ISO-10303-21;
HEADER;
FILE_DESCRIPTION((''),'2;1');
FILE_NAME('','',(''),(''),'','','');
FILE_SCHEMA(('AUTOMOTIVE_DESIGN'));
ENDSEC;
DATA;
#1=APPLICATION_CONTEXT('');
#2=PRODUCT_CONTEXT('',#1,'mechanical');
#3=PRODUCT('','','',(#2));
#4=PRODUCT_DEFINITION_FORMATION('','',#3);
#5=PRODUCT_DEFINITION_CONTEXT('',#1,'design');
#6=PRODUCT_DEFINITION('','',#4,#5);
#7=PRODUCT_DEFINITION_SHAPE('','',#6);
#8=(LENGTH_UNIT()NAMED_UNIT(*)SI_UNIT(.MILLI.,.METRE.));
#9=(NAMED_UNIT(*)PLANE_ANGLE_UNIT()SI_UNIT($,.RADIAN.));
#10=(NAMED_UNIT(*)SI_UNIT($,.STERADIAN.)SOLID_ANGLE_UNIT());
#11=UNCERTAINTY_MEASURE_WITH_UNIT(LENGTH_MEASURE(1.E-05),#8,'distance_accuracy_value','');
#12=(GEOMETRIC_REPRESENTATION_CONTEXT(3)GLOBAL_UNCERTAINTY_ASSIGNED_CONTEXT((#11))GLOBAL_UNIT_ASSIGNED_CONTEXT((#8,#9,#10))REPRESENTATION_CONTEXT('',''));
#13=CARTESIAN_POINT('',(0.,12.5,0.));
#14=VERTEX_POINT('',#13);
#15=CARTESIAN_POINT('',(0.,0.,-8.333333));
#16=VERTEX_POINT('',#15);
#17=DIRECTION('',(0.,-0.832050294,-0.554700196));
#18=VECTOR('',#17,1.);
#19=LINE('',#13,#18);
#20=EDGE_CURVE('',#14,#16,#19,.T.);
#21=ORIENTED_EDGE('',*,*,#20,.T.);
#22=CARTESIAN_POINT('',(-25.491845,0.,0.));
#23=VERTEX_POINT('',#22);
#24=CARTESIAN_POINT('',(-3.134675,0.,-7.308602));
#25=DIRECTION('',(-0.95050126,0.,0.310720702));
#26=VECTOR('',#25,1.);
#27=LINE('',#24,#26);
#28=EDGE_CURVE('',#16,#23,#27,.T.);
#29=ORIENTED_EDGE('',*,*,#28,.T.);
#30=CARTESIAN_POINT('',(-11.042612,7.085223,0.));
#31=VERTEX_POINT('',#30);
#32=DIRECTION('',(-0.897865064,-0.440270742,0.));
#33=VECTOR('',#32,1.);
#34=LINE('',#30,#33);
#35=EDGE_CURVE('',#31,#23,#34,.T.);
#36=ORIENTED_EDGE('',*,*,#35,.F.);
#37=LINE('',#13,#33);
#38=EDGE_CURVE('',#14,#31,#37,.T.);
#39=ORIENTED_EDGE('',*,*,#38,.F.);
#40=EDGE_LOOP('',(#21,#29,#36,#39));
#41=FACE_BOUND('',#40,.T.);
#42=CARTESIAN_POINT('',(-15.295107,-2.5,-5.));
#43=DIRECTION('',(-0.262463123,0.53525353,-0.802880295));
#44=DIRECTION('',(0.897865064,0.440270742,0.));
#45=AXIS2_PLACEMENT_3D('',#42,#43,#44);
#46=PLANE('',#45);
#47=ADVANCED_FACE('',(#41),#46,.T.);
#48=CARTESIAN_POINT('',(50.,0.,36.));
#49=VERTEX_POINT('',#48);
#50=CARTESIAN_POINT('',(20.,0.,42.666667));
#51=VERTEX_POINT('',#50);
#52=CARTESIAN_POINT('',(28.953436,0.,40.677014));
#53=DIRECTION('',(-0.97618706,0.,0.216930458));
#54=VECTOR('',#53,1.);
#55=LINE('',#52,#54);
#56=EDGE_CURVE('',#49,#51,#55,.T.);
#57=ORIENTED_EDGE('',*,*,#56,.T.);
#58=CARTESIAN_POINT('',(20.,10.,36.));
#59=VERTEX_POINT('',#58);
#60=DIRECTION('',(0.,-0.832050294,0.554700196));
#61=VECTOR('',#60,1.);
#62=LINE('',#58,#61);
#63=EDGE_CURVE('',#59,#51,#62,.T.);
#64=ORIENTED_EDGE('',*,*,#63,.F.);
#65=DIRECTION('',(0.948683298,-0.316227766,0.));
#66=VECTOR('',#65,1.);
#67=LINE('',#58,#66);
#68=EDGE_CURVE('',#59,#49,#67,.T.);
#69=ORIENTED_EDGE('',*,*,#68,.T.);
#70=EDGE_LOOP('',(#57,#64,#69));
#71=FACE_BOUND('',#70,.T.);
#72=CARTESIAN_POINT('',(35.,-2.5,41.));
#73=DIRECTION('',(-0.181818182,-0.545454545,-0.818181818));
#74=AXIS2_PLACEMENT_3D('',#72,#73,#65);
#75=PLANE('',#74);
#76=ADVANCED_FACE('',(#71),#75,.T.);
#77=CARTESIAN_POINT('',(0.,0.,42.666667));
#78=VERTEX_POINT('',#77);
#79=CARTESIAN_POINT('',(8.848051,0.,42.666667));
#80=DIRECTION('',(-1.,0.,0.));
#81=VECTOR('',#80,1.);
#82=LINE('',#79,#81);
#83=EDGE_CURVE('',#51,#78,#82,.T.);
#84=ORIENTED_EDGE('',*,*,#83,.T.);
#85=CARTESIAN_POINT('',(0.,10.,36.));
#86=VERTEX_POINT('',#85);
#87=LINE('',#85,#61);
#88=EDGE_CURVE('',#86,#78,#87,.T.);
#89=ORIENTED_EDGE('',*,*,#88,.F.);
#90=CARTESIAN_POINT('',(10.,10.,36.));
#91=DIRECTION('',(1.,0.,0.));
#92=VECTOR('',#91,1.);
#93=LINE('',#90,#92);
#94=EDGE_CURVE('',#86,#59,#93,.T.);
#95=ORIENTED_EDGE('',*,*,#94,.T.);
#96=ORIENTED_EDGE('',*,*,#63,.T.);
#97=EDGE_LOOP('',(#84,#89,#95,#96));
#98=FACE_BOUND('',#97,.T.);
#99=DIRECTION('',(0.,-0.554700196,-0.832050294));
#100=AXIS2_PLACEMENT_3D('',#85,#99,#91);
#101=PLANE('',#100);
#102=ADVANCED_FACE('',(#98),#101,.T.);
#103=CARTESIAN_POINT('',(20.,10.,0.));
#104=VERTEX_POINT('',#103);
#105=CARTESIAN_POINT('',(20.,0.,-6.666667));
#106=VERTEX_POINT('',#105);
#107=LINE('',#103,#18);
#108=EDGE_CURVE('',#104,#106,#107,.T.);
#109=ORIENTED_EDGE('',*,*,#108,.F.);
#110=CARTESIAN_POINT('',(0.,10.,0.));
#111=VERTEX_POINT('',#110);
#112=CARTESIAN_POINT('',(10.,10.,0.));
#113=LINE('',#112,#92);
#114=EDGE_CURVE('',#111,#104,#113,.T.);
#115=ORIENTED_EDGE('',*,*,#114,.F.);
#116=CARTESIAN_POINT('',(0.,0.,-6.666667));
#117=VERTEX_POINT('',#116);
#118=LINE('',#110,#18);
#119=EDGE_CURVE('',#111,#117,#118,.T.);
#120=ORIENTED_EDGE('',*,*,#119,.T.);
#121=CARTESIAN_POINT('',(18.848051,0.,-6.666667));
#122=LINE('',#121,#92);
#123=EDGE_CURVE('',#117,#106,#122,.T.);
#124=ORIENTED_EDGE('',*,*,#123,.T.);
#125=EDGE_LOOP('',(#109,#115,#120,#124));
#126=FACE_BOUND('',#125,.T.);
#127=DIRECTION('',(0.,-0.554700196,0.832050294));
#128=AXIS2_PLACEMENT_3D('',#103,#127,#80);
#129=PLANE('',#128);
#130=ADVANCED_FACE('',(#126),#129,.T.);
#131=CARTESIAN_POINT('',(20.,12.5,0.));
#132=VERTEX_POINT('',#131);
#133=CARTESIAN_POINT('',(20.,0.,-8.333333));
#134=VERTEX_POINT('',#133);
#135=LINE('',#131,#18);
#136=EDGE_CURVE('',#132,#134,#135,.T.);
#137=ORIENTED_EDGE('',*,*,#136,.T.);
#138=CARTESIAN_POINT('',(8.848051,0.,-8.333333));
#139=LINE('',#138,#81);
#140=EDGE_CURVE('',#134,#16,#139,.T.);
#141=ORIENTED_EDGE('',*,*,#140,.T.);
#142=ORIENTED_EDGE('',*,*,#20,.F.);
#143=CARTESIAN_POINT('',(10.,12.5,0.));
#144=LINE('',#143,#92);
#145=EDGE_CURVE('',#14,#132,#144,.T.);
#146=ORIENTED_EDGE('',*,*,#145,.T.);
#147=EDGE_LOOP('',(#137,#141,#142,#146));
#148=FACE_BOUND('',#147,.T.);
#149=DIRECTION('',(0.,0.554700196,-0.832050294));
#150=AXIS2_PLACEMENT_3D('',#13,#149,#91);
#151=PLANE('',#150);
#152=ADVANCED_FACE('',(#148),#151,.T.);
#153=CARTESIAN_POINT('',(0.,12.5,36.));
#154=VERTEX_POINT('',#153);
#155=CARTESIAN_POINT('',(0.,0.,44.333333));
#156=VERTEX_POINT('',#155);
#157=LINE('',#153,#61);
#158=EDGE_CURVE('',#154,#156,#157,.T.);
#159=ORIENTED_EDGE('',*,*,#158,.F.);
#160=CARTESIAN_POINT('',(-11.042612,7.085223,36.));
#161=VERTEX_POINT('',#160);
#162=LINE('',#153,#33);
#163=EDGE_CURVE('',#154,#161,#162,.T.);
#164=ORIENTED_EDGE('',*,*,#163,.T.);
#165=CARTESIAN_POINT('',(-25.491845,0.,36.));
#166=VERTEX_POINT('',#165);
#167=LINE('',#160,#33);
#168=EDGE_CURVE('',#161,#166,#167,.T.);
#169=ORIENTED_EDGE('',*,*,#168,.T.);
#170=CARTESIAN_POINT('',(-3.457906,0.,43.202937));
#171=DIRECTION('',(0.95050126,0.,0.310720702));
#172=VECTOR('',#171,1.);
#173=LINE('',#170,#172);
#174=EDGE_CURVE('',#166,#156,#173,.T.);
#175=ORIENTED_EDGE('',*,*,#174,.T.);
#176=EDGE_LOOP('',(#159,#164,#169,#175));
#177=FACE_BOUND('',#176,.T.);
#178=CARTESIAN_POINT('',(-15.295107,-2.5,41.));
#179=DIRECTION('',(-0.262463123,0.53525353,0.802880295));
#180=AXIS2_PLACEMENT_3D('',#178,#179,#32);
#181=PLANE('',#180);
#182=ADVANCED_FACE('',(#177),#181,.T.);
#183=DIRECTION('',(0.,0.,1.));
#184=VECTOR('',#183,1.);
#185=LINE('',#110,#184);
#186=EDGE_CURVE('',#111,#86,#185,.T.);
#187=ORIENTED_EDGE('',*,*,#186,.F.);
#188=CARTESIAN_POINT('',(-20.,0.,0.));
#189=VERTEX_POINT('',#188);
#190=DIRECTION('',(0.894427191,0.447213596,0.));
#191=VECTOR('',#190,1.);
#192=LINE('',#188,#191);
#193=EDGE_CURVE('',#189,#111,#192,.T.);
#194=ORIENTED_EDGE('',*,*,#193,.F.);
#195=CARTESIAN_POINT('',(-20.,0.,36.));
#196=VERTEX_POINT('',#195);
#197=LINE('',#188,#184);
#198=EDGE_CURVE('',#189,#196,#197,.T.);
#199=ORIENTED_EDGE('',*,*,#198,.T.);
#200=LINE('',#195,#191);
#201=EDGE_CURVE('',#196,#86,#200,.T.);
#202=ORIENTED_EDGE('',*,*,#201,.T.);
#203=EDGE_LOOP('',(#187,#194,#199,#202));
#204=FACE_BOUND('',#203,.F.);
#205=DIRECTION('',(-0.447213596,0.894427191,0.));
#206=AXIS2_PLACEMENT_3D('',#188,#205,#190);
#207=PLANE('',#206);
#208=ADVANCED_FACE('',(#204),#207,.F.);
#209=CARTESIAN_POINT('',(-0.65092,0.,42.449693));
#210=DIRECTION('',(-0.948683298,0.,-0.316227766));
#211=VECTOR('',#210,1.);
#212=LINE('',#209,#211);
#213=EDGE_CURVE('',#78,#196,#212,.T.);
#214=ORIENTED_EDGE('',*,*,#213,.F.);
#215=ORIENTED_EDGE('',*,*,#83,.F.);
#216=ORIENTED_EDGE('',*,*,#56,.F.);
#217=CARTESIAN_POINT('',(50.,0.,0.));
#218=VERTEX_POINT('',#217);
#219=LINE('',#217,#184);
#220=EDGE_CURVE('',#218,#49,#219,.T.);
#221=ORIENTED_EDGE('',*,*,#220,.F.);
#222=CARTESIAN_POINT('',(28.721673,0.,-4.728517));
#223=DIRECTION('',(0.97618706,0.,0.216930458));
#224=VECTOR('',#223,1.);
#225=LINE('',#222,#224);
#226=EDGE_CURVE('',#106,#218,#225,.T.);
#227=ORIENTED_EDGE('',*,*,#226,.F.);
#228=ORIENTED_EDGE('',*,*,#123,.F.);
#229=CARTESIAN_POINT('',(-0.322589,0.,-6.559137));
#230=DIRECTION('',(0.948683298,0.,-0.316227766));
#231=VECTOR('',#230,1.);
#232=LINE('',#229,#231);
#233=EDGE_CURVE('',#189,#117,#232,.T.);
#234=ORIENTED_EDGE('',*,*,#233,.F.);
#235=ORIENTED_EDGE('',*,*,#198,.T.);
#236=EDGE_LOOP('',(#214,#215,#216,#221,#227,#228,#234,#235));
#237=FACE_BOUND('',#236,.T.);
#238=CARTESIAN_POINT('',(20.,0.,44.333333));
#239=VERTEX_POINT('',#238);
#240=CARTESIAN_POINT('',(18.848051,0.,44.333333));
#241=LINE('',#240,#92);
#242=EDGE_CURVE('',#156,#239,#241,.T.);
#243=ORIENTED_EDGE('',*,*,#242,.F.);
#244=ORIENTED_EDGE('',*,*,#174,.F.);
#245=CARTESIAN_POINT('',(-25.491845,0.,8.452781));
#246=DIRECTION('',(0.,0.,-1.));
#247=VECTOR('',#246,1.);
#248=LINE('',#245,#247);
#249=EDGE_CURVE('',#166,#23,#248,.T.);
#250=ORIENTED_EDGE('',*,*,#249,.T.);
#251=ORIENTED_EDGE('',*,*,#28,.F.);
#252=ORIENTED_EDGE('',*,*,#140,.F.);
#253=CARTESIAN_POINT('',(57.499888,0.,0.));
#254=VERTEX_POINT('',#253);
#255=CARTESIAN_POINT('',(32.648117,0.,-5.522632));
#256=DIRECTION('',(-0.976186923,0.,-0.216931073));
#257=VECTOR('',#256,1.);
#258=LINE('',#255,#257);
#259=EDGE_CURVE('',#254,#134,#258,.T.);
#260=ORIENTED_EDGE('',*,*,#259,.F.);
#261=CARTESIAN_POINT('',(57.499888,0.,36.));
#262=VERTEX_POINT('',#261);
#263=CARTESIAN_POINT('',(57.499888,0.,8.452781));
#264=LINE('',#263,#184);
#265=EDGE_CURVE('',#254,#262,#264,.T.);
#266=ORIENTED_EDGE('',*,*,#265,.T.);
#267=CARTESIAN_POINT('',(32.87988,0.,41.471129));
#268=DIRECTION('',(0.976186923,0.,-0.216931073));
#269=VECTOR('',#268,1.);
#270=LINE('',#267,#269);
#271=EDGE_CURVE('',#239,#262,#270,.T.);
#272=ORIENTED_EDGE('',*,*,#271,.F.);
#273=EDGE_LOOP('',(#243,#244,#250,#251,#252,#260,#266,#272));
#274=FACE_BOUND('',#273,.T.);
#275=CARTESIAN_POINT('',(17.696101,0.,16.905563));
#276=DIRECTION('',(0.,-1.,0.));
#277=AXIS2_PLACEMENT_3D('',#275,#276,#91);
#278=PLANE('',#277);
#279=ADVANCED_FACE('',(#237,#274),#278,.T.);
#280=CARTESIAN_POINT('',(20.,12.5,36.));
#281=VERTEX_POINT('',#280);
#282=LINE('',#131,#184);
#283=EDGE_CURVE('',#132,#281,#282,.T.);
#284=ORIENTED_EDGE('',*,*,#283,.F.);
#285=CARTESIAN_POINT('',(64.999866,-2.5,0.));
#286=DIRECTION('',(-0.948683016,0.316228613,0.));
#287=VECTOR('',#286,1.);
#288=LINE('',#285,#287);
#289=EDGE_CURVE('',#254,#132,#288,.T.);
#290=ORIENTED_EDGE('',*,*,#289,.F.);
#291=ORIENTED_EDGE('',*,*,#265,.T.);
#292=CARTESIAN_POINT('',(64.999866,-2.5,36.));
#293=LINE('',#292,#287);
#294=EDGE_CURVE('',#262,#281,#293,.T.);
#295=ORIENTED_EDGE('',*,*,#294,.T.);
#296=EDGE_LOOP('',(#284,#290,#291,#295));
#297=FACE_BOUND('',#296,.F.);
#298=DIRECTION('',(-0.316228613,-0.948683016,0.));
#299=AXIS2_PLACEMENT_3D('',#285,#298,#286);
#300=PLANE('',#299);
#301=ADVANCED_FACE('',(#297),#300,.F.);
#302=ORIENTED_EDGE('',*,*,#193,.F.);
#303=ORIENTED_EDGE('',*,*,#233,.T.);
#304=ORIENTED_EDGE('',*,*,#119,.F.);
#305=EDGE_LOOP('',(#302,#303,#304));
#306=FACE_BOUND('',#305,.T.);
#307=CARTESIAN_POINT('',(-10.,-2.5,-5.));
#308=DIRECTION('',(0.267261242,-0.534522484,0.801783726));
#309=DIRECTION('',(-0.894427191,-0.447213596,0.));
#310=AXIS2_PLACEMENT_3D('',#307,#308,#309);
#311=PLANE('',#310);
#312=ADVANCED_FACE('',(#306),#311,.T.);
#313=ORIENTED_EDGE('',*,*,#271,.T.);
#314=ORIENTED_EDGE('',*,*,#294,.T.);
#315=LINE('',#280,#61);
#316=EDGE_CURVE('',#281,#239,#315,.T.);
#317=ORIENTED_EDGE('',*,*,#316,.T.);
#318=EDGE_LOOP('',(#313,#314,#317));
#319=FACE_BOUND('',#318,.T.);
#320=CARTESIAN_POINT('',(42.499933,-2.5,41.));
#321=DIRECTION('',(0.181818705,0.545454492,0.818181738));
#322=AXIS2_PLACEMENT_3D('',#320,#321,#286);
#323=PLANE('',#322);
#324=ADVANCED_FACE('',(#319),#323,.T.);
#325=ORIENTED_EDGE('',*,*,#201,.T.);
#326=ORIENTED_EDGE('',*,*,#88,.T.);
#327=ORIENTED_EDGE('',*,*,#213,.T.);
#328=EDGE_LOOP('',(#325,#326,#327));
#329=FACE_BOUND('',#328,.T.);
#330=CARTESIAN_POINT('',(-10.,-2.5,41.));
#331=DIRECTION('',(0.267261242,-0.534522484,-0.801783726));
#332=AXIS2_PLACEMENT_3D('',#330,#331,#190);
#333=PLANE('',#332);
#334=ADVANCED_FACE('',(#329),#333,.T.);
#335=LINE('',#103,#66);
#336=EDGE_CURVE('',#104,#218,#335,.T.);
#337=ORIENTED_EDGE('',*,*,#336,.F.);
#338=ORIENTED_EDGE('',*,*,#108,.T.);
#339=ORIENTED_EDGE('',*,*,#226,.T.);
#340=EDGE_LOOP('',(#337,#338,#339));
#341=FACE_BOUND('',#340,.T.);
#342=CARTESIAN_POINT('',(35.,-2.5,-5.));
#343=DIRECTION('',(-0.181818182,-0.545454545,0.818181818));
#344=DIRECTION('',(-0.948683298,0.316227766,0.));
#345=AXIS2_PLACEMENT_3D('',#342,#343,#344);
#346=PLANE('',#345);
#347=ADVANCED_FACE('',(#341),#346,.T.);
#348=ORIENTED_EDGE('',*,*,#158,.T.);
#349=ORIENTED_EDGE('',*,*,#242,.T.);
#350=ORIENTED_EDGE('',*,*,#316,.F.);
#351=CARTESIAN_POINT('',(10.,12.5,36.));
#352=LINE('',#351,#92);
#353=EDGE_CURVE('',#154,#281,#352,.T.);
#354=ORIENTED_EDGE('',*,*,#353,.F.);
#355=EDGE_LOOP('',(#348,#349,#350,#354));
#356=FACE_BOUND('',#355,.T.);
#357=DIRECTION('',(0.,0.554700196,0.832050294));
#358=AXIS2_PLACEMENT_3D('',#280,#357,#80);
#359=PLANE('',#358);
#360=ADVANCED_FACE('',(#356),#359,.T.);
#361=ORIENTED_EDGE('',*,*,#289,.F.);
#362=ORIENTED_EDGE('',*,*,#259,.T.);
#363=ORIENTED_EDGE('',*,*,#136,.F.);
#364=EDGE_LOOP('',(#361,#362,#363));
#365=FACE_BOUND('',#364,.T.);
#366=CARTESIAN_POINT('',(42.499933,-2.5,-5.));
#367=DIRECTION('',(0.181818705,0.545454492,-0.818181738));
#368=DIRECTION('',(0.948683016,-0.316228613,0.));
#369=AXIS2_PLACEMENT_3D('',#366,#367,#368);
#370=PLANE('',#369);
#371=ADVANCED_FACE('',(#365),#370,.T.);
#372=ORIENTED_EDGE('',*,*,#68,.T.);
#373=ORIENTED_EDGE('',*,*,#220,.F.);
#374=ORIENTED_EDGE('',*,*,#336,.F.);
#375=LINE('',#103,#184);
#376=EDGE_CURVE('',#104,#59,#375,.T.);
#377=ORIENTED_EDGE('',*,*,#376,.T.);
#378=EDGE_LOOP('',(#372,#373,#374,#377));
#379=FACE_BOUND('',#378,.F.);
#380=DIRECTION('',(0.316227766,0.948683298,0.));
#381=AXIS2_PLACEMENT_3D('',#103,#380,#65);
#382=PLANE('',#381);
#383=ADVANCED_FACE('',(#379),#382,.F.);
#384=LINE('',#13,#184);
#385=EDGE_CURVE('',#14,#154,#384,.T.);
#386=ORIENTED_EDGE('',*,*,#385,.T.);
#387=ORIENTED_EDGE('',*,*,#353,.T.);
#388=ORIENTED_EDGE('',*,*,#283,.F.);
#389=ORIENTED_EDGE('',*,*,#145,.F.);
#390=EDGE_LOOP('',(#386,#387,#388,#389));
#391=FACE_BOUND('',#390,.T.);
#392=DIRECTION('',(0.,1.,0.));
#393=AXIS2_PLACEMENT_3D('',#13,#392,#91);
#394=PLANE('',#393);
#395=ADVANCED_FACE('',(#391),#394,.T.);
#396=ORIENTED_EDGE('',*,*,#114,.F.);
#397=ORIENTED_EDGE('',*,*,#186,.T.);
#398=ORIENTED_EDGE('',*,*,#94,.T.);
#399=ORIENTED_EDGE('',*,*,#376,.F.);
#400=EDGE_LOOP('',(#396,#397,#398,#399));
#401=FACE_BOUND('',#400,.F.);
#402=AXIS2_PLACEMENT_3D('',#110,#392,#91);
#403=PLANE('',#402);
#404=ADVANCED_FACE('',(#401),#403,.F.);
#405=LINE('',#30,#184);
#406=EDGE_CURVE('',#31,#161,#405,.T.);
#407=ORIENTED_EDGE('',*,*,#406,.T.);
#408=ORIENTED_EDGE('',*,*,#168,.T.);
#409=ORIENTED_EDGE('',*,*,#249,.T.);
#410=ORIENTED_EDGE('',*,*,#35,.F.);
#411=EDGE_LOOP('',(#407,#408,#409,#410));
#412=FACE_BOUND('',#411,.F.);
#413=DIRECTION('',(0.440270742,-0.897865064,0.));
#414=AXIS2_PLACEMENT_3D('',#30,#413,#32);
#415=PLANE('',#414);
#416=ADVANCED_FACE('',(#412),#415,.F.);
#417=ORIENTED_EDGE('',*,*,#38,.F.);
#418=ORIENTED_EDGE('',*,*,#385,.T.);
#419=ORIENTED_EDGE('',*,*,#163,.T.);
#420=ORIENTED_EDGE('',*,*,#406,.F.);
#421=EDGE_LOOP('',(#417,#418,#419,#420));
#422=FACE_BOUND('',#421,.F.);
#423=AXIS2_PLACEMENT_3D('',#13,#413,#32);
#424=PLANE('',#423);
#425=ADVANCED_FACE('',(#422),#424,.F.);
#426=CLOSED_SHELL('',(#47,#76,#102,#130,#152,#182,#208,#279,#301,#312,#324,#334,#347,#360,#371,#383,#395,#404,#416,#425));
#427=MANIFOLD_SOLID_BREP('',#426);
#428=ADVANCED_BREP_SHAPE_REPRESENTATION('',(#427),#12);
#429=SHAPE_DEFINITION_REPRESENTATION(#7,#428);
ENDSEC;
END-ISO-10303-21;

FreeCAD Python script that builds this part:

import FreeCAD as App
import Part
import Sketcher
from FreeCAD import Vector


def add_polygon(sketch, points):
    """Adds a closed chain of lines whose ends are joined by coincident constraints."""
    first, n = sketch.GeometryCount, len(points)
    for a, b in zip(points, points[1:] + points[:1]):
        sketch.addGeometry(Part.LineSegment(App.Vector(*a, 0), App.Vector(*b, 0)), False)
    for i in range(n):
        sketch.addConstraint(Sketcher.Constraint("Coincident", first + i, 2, first + (i + 1) % n, 1))

doc = App.newDocument("Part")
body = doc.addObject("PartDesign::Body", "Body")

# Sketch on XY plane
sketch1 = body.newObject("Sketcher::SketchObject", "Sketch")
sketch1.AttachmentSupport = (doc.getObject("XY_Plane"), [""])
sketch1.MapMode = "FlatFace"
add_polygon(sketch1, [(0, 12.5), (-11.042612, 7.085223), (-30.590213, -2.5), (64.999866, -2.5), (20, 12.5)])  # lines 0-4
add_polygon(sketch1, [(20, 10), (50, 0), (-20, 0), (0, 10)])  # lines 5-8
sketch1.addConstraint([
    Sketcher.Constraint("Horizontal", 2),
    Sketcher.Constraint("Horizontal", 4),
    Sketcher.Constraint("Horizontal", 6),
    Sketcher.Constraint("Horizontal", 8),
    Sketcher.Constraint("PointOnObject", 4, 2, -2),
    Sketcher.Constraint("PointOnObject", 5, 2, -1),
    Sketcher.Constraint("PointOnObject", 7, 2, -2),
    Sketcher.Constraint("DistanceX", 4, 2, 4, 1, 20.0),
    Sketcher.Constraint("DistanceX", 6, 2, 6, 1, 70.0),
    Sketcher.Constraint("DistanceX", 8, 1, 8, 2, 20.0),
    Sketcher.Constraint("DistanceX", -1, 1, 5, 2, 50.0),
    Sketcher.Constraint("DistanceY", -1, 1, 7, 2, 10.0),
    Sketcher.Constraint("DistanceY", 2, 2, 3, 2, 15.0),
    Sketcher.Constraint("DistanceY", 1, 2, -1, 1, 2.5),
    Sketcher.Constraint("DistanceX", 2, 1, 2, 2, 95.590079),
    Sketcher.Constraint("DistanceX", 1, 2, 0, 2, 19.547602),
    Sketcher.Constraint("DistanceX", 0, 2, -1, 1, 11.042612),
    Sketcher.Constraint("Distance", 0, 12.298743),
])
pad1 = body.newObject("PartDesign::Pad", "Pad")
pad1.Profile = sketch1
pad1.Length = 36

# Sketch on XY plane
sketch2 = body.newObject("Sketcher::SketchObject", "Sketch001")
sketch2.AttachmentSupport = (doc.getObject("XY_Plane"), [""])
sketch2.MapMode = "FlatFace"
sketch2.AttachmentOffset = App.Placement(Vector(0, 0, 36), App.Rotation())
add_polygon(sketch2, [(0, 12.5), (-30.590213, -2.5), (64.999866, -2.5), (20, 12.5)])  # lines 0-3
add_polygon(sketch2, [(0, 10), (20, 10), (50, 0), (-20, 0)])  # lines 4-7
sketch2.addConstraint([
    Sketcher.Constraint("Horizontal", 1),
    Sketcher.Constraint("Horizontal", 3),
    Sketcher.Constraint("Horizontal", 4),
    Sketcher.Constraint("Horizontal", 6),
    Sketcher.Constraint("PointOnObject", 3, 2, -2),
    Sketcher.Constraint("PointOnObject", 5, 2, -1),
    Sketcher.Constraint("PointOnObject", 7, 2, -2),
    Sketcher.Constraint("DistanceX", 3, 2, 3, 1, 20.0),
    Sketcher.Constraint("DistanceX", 4, 1, 4, 2, 20.0),
    Sketcher.Constraint("DistanceX", 6, 2, 6, 1, 70.0),
    Sketcher.Constraint("DistanceY", -1, 1, 4, 2, 10.0),
    Sketcher.Constraint("DistanceX", -1, 1, 5, 2, 50.0),
    Sketcher.Constraint("DistanceY", 1, 2, 2, 2, 15.0),
    Sketcher.Constraint("DistanceY", 0, 2, -1, 1, 2.5),
    Sketcher.Constraint("DistanceX", 1, 1, 1, 2, 95.590079),
    Sketcher.Constraint("Distance", 0, 34.069945),
])

# Sketch on an angled plane
sketch3 = body.newObject("Sketcher::SketchObject", "Sketch002")
sketch3.Placement = App.Placement(Vector(0, 20.396349, 30.594523), App.Rotation(Vector(0, 0.832050294, -0.554700196), Vector(0.999999999, 0, 0), Vector(0, -0.554700196, -0.832050294), "ZXY"))
sketch3.addGeometry(Part.LineSegment(Vector(-10, 0, 0), Vector(-28, 0, 0)), False)
sketch3.addConstraint([
    Sketcher.Constraint("Horizontal", 0),
    Sketcher.Constraint("PointOnObject", 0, 1, -1),
    Sketcher.Constraint("DistanceX", 0, 2, 0, 1, 18.027756),
    Sketcher.Constraint("DistanceX", 0, 1, -1, 1, 9.744862),
])
doc.recompute()

additivepipe = body.newObject("PartDesign::AdditivePipe", "AdditivePipe")
additivepipe.Profile = sketch2
additivepipe.Spine = (sketch3, ["Edge1"])

# Sketch on XY plane
sketch4 = body.newObject("Sketcher::SketchObject", "Sketch003")
sketch4.AttachmentSupport = (doc.getObject("XY_Plane"), [""])
sketch4.MapMode = "FlatFace"
add_polygon(sketch4, [(-30.590213, -2.5), (0, 12.5), (20, 12.5), (64.999866, -2.5)])  # lines 0-3
add_polygon(sketch4, [(-20, 0), (50, 0), (20, 10), (0, 10)])  # lines 4-7
sketch4.addConstraint([
    Sketcher.Constraint("Horizontal", 1),
    Sketcher.Constraint("Horizontal", 3),
    Sketcher.Constraint("Horizontal", 4),
    Sketcher.Constraint("Horizontal", 6),
    Sketcher.Constraint("PointOnObject", 0, 2, -2),
    Sketcher.Constraint("PointOnObject", 4, 2, -1),
    Sketcher.Constraint("PointOnObject", 6, 2, -2),
    Sketcher.Constraint("DistanceX", 1, 1, 1, 2, 20.0),
    Sketcher.Constraint("DistanceX", 4, 1, 4, 2, 70.0),
    Sketcher.Constraint("DistanceX", 6, 2, 6, 1, 20.0),
    Sketcher.Constraint("DistanceX", -1, 1, 4, 2, 50.0),
    Sketcher.Constraint("DistanceY", -1, 1, 5, 2, 10.0),
    Sketcher.Constraint("DistanceY", 2, 2, 1, 2, 15.0),
    Sketcher.Constraint("DistanceY", -1, 1, 0, 2, 12.5),
    Sketcher.Constraint("DistanceX", 3, 2, 3, 1, 95.590079),
    Sketcher.Constraint("Distance", 0, 34.069945),
])

# Sketch on an angled plane
sketch5 = body.newObject("Sketcher::SketchObject", "Sketch004")
sketch5.Placement = App.Placement(Vector(0, 3.780964, -5.671446), App.Rotation(Vector(0, 0.832050294, 0.554700196), Vector(0.999999999, 0, 0), Vector(0, 0.554700196, -0.832050294), "ZXY"))
sketch5.addGeometry(Part.LineSegment(Vector(10, 0, 0), Vector(-8, 0, 0)), False)
sketch5.addConstraint([
    Sketcher.Constraint("Horizontal", 0),
    Sketcher.Constraint("PointOnObject", 0, 1, -1),
    Sketcher.Constraint("DistanceX", 0, 2, 0, 1, 18.027756),
    Sketcher.Constraint("DistanceX", 0, 2, -1, 1, 7.803411),
])
doc.recompute()

additivepipe2 = body.newObject("PartDesign::AdditivePipe", "AdditivePipe001")
additivepipe2.Profile = sketch4
additivepipe2.Spine = (sketch5, ["Edge1"])

# Sketch on XZ plane
sketch6 = body.newObject("Sketcher::SketchObject", "Sketch005")
sketch6.AttachmentSupport = (doc.getObject("XZ_Plane"), [""])
sketch6.MapMode = "FlatFace"
add_polygon(sketch6, [(-37, 50), (-37, -17), (72, -17), (72, 50)])  # lines 0-3
sketch6.addConstraint([
    Sketcher.Constraint("Vertical", 0),
    Sketcher.Constraint("Horizontal", 1),
    Sketcher.Constraint("Vertical", 2),
    Sketcher.Constraint("Horizontal", 3),
    Sketcher.Constraint("DistanceX", 1, 1, 1, 2, 108.484097),
    Sketcher.Constraint("DistanceY", 0, 2, 0, 1, 66.942047),
    Sketcher.Constraint("DistanceY", 0, 2, -1, 1, 16.565461),
    Sketcher.Constraint("DistanceX", -1, 1, 1, 2, 71.93815),
])
pocket1 = body.newObject("PartDesign::Pocket", "Pocket")
pocket1.Profile = sketch6
pocket1.Length = 25
pocket1.Reversed = True

doc.recompute()
